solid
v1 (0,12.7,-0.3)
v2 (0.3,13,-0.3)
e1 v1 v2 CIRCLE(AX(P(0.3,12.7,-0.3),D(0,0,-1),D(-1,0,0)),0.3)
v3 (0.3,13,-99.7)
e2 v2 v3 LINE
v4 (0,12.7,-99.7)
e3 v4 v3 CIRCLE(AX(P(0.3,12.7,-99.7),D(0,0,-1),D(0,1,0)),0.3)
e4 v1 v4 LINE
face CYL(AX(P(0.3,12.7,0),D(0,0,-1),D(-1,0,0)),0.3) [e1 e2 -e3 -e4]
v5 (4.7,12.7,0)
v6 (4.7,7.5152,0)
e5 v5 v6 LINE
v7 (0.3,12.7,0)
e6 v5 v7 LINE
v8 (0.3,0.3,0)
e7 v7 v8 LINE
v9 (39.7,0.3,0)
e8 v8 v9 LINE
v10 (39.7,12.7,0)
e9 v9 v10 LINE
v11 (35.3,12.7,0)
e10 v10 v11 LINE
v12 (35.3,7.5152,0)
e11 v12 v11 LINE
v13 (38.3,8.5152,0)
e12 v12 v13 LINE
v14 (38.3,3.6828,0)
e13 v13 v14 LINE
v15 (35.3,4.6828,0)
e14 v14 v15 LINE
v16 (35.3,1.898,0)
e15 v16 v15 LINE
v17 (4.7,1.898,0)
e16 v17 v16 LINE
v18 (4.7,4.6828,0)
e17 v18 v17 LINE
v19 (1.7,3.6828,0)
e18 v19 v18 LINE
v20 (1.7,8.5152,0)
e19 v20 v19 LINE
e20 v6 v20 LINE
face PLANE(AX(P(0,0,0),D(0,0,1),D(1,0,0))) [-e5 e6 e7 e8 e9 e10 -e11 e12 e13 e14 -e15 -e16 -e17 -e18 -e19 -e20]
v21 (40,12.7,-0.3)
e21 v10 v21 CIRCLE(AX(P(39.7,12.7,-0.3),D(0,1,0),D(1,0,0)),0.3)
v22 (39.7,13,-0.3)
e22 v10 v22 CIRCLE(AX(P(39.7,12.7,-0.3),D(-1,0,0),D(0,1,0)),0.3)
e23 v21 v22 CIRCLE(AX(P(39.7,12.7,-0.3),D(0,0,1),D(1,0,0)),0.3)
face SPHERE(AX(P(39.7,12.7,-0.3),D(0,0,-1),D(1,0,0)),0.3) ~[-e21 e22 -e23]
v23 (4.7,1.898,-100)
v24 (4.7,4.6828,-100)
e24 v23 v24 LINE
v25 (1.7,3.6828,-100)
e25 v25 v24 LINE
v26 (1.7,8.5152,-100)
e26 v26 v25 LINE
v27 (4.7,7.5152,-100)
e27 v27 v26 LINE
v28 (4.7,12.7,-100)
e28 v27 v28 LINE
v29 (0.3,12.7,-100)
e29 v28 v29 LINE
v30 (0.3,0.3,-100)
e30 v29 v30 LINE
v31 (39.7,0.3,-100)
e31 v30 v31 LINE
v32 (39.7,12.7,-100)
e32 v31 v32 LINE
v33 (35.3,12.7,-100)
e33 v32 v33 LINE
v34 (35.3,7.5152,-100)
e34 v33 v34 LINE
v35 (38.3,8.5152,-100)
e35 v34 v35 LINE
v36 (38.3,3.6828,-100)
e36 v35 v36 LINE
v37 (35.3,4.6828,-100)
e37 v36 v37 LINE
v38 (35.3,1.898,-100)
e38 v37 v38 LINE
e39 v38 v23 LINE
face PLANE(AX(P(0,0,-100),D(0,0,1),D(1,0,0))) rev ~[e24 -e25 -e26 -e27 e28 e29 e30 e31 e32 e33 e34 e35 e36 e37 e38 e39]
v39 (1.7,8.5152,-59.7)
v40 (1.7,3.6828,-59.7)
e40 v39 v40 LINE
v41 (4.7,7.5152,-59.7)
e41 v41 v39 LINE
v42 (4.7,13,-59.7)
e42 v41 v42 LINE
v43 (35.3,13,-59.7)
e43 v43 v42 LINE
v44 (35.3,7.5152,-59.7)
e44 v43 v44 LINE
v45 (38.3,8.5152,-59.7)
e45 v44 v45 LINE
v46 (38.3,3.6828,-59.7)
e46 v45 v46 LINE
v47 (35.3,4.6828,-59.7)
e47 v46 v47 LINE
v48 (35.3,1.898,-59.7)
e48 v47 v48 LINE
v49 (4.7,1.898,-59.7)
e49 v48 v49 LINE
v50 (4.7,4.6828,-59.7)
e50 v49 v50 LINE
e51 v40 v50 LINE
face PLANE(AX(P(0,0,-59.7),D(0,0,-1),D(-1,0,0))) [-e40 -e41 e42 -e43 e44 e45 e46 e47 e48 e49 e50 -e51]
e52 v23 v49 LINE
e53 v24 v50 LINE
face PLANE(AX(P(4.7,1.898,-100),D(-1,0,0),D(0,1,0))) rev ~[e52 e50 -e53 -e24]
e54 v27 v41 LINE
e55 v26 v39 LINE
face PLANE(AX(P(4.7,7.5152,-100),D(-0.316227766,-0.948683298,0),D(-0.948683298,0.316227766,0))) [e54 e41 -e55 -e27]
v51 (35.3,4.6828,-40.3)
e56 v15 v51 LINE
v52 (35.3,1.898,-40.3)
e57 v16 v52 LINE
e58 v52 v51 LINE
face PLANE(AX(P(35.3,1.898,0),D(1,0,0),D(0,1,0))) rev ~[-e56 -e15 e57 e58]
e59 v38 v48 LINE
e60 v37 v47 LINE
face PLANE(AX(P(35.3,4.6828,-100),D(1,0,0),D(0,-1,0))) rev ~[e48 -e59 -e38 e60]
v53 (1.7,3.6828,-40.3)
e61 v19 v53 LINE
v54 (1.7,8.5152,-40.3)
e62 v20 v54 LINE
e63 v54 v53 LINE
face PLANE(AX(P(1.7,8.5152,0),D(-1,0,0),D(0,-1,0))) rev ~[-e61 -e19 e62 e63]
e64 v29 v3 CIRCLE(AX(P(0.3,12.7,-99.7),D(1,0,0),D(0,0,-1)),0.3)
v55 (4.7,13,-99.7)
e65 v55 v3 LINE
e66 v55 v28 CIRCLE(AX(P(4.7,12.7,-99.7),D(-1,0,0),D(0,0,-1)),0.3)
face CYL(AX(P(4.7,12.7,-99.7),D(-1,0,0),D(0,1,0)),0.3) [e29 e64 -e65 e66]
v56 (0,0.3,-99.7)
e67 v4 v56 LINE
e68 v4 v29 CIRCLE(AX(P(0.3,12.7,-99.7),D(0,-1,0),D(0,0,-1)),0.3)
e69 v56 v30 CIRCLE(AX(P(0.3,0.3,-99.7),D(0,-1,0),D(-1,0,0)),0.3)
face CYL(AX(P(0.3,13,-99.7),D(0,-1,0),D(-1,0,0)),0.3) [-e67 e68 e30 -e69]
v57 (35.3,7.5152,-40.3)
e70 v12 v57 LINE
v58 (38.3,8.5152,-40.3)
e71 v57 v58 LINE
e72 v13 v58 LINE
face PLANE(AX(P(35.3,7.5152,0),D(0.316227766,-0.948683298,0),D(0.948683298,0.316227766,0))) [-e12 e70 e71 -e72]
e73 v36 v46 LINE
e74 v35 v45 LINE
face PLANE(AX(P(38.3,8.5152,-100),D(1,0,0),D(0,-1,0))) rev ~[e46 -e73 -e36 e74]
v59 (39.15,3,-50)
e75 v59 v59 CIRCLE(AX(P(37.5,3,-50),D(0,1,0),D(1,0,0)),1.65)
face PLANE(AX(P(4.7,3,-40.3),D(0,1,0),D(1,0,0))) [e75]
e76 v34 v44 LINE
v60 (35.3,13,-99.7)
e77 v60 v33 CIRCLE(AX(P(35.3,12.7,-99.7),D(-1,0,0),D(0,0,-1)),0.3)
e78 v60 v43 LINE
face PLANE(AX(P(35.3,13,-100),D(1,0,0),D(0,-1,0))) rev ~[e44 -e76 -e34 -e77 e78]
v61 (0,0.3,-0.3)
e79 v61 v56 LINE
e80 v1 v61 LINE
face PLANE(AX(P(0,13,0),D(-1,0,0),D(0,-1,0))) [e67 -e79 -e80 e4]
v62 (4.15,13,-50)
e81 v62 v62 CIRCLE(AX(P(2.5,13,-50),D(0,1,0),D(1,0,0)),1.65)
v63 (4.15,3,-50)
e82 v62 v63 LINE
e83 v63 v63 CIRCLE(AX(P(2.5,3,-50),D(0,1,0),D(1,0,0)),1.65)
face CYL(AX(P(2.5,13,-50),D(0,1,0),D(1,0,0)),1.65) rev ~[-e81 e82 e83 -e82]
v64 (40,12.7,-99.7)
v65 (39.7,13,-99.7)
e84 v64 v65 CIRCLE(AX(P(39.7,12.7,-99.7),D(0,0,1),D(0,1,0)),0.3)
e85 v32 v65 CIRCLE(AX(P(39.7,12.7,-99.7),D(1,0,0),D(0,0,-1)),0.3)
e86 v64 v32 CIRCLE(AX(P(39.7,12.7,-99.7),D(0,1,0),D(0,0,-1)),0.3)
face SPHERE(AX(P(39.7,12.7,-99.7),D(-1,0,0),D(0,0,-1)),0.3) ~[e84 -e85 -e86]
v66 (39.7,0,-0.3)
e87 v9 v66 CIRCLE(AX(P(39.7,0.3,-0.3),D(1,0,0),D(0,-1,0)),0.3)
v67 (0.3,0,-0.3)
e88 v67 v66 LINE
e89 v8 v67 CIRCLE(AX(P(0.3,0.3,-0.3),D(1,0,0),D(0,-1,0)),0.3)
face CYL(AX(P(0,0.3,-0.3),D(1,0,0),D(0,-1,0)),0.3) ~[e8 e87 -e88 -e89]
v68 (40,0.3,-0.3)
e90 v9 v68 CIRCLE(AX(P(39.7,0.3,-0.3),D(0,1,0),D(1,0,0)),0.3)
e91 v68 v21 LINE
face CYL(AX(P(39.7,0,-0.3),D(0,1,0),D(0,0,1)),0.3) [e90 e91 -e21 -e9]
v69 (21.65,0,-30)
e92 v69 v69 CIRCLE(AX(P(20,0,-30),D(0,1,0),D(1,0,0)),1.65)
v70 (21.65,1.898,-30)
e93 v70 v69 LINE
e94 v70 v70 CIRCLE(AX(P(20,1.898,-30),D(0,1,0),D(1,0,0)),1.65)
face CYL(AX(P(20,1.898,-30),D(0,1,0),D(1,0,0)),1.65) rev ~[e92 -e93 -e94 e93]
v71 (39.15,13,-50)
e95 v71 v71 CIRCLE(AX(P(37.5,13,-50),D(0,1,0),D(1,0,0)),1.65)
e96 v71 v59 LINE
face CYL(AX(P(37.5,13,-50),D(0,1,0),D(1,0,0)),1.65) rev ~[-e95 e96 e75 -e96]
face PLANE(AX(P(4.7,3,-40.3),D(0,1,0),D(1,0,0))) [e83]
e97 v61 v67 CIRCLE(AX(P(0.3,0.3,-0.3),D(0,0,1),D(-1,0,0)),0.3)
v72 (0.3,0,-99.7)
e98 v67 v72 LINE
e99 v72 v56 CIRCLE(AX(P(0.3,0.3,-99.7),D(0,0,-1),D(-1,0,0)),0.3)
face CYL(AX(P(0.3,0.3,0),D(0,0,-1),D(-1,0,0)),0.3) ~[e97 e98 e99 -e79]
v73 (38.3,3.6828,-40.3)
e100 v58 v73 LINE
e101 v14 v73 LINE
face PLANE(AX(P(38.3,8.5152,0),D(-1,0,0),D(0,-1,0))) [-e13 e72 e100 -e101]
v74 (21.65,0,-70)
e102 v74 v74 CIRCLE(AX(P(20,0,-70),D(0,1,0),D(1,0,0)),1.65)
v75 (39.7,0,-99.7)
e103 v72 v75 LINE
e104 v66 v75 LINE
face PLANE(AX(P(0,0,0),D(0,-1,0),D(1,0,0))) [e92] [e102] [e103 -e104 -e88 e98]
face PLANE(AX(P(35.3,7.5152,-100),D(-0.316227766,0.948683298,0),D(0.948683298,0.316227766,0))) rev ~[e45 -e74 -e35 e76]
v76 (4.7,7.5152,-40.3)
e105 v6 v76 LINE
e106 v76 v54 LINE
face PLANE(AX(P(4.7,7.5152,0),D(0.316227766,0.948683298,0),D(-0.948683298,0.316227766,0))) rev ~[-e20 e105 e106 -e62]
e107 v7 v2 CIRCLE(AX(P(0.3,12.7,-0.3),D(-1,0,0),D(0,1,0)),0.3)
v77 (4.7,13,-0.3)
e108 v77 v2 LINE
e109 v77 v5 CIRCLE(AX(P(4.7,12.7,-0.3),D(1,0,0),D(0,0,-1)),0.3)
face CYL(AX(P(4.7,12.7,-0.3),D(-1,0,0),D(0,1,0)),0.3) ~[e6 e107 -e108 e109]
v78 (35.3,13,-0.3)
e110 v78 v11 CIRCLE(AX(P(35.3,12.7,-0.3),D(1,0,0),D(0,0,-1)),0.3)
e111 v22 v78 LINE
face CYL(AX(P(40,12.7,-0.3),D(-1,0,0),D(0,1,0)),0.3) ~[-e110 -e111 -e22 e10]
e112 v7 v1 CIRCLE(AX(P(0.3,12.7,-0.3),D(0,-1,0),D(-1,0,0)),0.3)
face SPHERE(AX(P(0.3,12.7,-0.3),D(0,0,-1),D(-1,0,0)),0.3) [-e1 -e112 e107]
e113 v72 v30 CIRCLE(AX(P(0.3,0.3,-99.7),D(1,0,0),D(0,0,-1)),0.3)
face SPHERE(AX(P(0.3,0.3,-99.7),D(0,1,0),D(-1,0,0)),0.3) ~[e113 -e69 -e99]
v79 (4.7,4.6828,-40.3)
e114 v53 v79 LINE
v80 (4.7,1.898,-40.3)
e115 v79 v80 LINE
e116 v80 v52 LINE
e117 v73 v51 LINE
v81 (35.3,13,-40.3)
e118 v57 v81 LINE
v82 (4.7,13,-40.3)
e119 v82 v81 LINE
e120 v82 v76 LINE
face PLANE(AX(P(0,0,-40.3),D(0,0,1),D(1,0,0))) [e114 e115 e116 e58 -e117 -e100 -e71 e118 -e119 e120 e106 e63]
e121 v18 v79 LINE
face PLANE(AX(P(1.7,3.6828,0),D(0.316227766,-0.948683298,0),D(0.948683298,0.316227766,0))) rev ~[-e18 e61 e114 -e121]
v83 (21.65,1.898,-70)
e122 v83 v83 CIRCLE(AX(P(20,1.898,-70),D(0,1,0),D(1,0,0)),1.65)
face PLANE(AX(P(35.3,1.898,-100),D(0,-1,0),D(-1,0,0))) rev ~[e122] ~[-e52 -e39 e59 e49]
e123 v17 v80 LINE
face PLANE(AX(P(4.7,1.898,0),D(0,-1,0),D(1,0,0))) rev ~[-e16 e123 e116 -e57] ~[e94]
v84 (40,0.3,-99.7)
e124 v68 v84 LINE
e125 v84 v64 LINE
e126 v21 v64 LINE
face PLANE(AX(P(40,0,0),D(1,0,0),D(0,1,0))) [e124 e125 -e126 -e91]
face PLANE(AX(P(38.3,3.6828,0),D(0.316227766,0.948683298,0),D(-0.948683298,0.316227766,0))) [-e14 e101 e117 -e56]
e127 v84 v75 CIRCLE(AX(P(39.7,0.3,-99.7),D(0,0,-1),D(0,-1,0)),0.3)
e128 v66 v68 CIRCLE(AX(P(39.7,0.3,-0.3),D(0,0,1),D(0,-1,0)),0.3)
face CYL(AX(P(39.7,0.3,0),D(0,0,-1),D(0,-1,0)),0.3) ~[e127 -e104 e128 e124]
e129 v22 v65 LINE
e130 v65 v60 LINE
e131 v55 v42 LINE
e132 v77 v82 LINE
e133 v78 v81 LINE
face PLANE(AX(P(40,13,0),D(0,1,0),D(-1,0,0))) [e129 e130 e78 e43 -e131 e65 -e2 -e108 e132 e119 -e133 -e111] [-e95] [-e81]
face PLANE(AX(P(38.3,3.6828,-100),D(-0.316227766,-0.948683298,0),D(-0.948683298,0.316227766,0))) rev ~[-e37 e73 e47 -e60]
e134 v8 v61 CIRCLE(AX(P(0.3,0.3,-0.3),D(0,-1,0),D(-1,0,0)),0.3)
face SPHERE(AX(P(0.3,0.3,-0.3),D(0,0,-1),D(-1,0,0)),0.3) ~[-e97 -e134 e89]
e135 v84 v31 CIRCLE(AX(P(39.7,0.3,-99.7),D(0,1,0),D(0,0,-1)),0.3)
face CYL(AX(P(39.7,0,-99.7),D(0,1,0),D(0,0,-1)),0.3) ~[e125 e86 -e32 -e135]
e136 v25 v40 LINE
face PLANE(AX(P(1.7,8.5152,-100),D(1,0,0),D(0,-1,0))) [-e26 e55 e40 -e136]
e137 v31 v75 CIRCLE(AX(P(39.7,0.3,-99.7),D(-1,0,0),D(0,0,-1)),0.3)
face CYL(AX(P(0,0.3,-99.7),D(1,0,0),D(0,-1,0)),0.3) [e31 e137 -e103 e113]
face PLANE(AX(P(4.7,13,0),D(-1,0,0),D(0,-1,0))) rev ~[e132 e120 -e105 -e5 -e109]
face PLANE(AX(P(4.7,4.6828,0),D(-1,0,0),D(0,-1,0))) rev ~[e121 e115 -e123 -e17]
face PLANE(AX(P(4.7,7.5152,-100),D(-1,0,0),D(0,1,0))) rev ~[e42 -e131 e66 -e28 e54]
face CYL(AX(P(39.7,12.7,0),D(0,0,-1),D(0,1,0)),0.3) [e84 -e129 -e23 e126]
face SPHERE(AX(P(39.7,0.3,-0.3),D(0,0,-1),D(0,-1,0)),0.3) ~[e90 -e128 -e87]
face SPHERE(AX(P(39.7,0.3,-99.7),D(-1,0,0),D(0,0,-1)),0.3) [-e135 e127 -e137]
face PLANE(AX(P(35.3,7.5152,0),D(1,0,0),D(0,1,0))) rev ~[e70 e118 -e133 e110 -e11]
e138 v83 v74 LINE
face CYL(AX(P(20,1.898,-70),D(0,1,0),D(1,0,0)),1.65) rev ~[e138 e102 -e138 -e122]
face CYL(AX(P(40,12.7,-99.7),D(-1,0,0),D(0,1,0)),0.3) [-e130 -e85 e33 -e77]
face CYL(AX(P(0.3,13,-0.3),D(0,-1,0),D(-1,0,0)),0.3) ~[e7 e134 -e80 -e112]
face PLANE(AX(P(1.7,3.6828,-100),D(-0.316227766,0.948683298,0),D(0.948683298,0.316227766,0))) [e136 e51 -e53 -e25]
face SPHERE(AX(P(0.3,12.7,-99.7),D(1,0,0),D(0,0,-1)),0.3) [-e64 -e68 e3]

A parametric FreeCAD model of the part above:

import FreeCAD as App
import Part
import Sketcher

V = App.Vector


def edges_at(feature, points):
    """Names of the edges that pass closest to the given points."""
    edges = feature.Shape.Edges
    near = lambda p: min(range(len(edges)), key=lambda i: edges[i].distToShape(Part.Vertex(*p))[0])
    return sorted({f"Edge{near(p) + 1}" for p in points})

doc = App.newDocument("Part")
body = doc.addObject("PartDesign::Body", "Body")

# Sketch on XY plane
sketch1 = body.newObject("Sketcher::SketchObject", "Sketch")
sketch1.AttachmentSupport = (doc.getObject("XY_Plane"), [""])
sketch1.MapMode = "FlatFace"
sketch1.addGeometry([
    Part.LineSegment(V(0, 13, 0), V(0, 0, 0)),
    Part.LineSegment(V(0, 0, 0), V(40, 0, 0)),
    Part.LineSegment(V(40, 0, 0), V(40, 13, 0)),
    Part.LineSegment(V(40, 13, 0), V(0, 13, 0)),
], False)
sketch1.addConstraint([
    Sketcher.Constraint("Coincident", 0, 2, 1, 1),
    Sketcher.Constraint("Coincident", 1, 2, 2, 1),
    Sketcher.Constraint("Coincident", 2, 2, 3, 1),
    Sketcher.Constraint("Coincident", 3, 2, 0, 1),
    Sketcher.Constraint("Vertical", 0),
    Sketcher.Constraint("Horizontal", 1),
    Sketcher.Constraint("Vertical", 2),
    Sketcher.Constraint("Horizontal", 3),
    Sketcher.Constraint("Coincident", 0, 2, -1, 1),
    Sketcher.Constraint("DistanceX", 1, 1, 1, 2, 40.0),
    Sketcher.Constraint("DistanceY", 0, 2, 0, 1, 13.0),
])
pad1 = body.newObject("PartDesign::Pad", "Pad")
pad1.Profile = sketch1
pad1.Length = 100
pad1.Reversed = True

# Sketch on XY plane
sketch2 = body.newObject("Sketcher::SketchObject", "Sketch001")
sketch2.AttachmentSupport = (doc.getObject("XY_Plane"), [""])
sketch2.MapMode = "FlatFace"
sketch2.addGeometry([
    Part.LineSegment(V(4.7, 4.7, 0), V(4.7, 1.9, 0)),  # 0
    Part.LineSegment(V(4.7, 1.9, 0), V(35.3, 1.9, 0)),  # 1
    Part.LineSegment(V(35.3, 1.9, 0), V(35.3, 4.7, 0)),  # 2
    Part.LineSegment(V(35.3, 4.7, 0), V(38.3, 3.7, 0)),  # 3
    Part.LineSegment(V(38.3, 3.7, 0), V(38.3, 8.5, 0)),  # 4
    Part.LineSegment(V(38.3, 8.5, 0), V(35.3, 7.5, 0)),  # 5
    Part.LineSegment(V(35.3, 7.5, 0), V(35.3, 13, 0)),  # 6
    Part.LineSegment(V(35.3, 13, 0), V(4.7, 13, 0)),  # 7
    Part.LineSegment(V(4.7, 13, 0), V(4.7, 7.5, 0)),  # 8
    Part.LineSegment(V(4.7, 7.5, 0), V(1.7, 8.5, 0)),  # 9
    Part.LineSegment(V(1.7, 8.5, 0), V(1.7, 3.7, 0)),  # 10
    Part.LineSegment(V(1.7, 3.7, 0), V(4.7, 4.7, 0)),  # 11
], False)
sketch2.addConstraint([
    Sketcher.Constraint("Coincident", 0, 2, 1, 1),
    Sketcher.Constraint("Coincident", 1, 2, 2, 1),
    Sketcher.Constraint("Coincident", 2, 2, 3, 1),
    Sketcher.Constraint("Coincident", 3, 2, 4, 1),
    Sketcher.Constraint("Coincident", 4, 2, 5, 1),
    Sketcher.Constraint("Coincident", 5, 2, 6, 1),
    Sketcher.Constraint("Coincident", 6, 2, 7, 1),
    Sketcher.Constraint("Coincident", 7, 2, 8, 1),
    Sketcher.Constraint("Coincident", 8, 2, 9, 1),
    Sketcher.Constraint("Coincident", 9, 2, 10, 1),
    Sketcher.Constraint("Coincident", 10, 2, 11, 1),
    Sketcher.Constraint("Coincident", 11, 2, 0, 1),
    Sketcher.Constraint("Vertical", 0),
    Sketcher.Constraint("Horizontal", 1),
    Sketcher.Constraint("Vertical", 2),
    Sketcher.Constraint("Vertical", 4),
    Sketcher.Constraint("Vertical", 6),
    Sketcher.Constraint("Horizontal", 7),
    Sketcher.Constraint("Vertical", 8),
    Sketcher.Constraint("Vertical", 10),
    Sketcher.Constraint("Parallel", 3, 9),
    Sketcher.Constraint("Parallel", 5, 11),
    Sketcher.Constraint("Horizontal", 5, 2, 8, 2),
    Sketcher.Constraint("Horizontal", 4, 2, 9, 2),
    Sketcher.Constraint("Horizontal", 3, 2, 10, 2),
    Sketcher.Constraint("Horizontal", 2, 2, 11, 2),
    Sketcher.Constraint("Vertical", 2, 2, 5, 2),
    Sketcher.Constraint("Vertical", 0, 2, 7, 2),
    Sketcher.Constraint("DistanceX", 1, 1, 1, 2, 30.6),
    Sketcher.Constraint("DistanceY", -1, 1, 6, 2, 13.0),
    Sketcher.Constraint("DistanceX", 2, 2, 3, 2, 3.0),
    Sketcher.Constraint("DistanceY", 3, 2, 2, 2, 1.0),
    Sketcher.Constraint("DistanceX", -1, 1, 0, 2, 4.7),
    Sketcher.Constraint("DistanceY", 0, 2, 0, 1, 2.7848),
    Sketcher.Constraint("DistanceY", 4, 1, 4, 2, 4.8324),
    Sketcher.Constraint("DistanceY", 6, 1, 6, 2, 5.4848),
])
pocket1 = body.newObject("PartDesign::Pocket", "Pocket")
pocket1.Profile = sketch2
pocket1.Length = 40.3

# Sketch on XY plane
sketch3 = body.newObject("Sketcher::SketchObject", "Sketch002")
sketch3.AttachmentSupport = (doc.getObject("XY_Plane"), [""])
sketch3.MapMode = "FlatFace"
sketch3.AttachmentOffset = App.Placement(V(0, 0, -100), App.Rotation())
sketch3.addGeometry([
    Part.LineSegment(V(35.3, 4.7, 0), V(35.3, 1.9, 0)),  # 0
    Part.LineSegment(V(35.3, 1.9, 0), V(4.7, 1.9, 0)),  # 1
    Part.LineSegment(V(4.7, 1.9, 0), V(4.7, 4.7, 0)),  # 2
    Part.LineSegment(V(4.7, 4.7, 0), V(1.7, 3.7, 0)),  # 3
    Part.LineSegment(V(1.7, 3.7, 0), V(1.7, 8.5, 0)),  # 4
    Part.LineSegment(V(1.7, 8.5, 0), V(4.7, 7.5, 0)),  # 5
    Part.LineSegment(V(4.7, 7.5, 0), V(4.7, 13, 0)),  # 6
    Part.LineSegment(V(4.7, 13, 0), V(35.3, 13, 0)),  # 7
    Part.LineSegment(V(35.3, 13, 0), V(35.3, 7.5, 0)),  # 8
    Part.LineSegment(V(35.3, 7.5, 0), V(38.3, 8.5, 0)),  # 9
    Part.LineSegment(V(38.3, 8.5, 0), V(38.3, 3.7, 0)),  # 10
    Part.LineSegment(V(38.3, 3.7, 0), V(35.3, 4.7, 0)),  # 11
], False)
sketch3.addConstraint([
    Sketcher.Constraint("Coincident", 0, 2, 1, 1),
    Sketcher.Constraint("Coincident", 1, 2, 2, 1),
    Sketcher.Constraint("Coincident", 2, 2, 3, 1),
    Sketcher.Constraint("Coincident", 3, 2, 4, 1),
    Sketcher.Constraint("Coincident", 4, 2, 5, 1),
    Sketcher.Constraint("Coincident", 5, 2, 6, 1),
    Sketcher.Constraint("Coincident", 6, 2, 7, 1),
    Sketcher.Constraint("Coincident", 7, 2, 8, 1),
    Sketcher.Constraint("Coincident", 8, 2, 9, 1),
    Sketcher.Constraint("Coincident", 9, 2, 10, 1),
    Sketcher.Constraint("Coincident", 10, 2, 11, 1),
    Sketcher.Constraint("Coincident", 11, 2, 0, 1),
    Sketcher.Constraint("Vertical", 0),
    Sketcher.Constraint("Horizontal", 1),
    Sketcher.Constraint("Vertical", 2),
    Sketcher.Constraint("Vertical", 4),
    Sketcher.Constraint("Vertical", 6),
    Sketcher.Constraint("Horizontal", 7),
    Sketcher.Constraint("Vertical", 8),
    Sketcher.Constraint("Vertical", 10),
    Sketcher.Constraint("Parallel", 3, 9),
    Sketcher.Constraint("Parallel", 5, 11),
    Sketcher.Constraint("Horizontal", 5, 2, 8, 2),
    Sketcher.Constraint("Horizontal", 4, 2, 9, 2),
    Sketcher.Constraint("Horizontal", 3, 2, 10, 2),
    Sketcher.Constraint("Horizontal", 2, 2, 11, 2),
    Sketcher.Constraint("Vertical", 2, 2, 5, 2),
    Sketcher.Constraint("Vertical", 0, 2, 7, 2),
    Sketcher.Constraint("DistanceX", 1, 2, 1, 1, 30.6),
    Sketcher.Constraint("DistanceY", -1, 1, 6, 2, 13.0),
    Sketcher.Constraint("DistanceX", 3, 2, 2, 2, 3.0),
    Sketcher.Constraint("DistanceY", 3, 2, 2, 2, 1.0),
    Sketcher.Constraint("DistanceX", -1, 1, 0, 2, 35.3),
    Sketcher.Constraint("DistanceY", 0, 2, 0, 1, 2.7848),
    Sketcher.Constraint("DistanceY", 4, 1, 4, 2, 4.8324),
    Sketcher.Constraint("DistanceY", 6, 1, 6, 2, 5.4848),
])
pocket2 = body.newObject("PartDesign::Pocket", "Pocket001")
pocket2.Profile = sketch3
pocket2.Length = 40.3
pocket2.Reversed = True

# Sketch on XZ plane
sketch4 = body.newObject("Sketcher::SketchObject", "Sketch003")
sketch4.AttachmentSupport = (doc.getObject("XZ_Plane"), [""])
sketch4.MapMode = "FlatFace"
sketch4.AttachmentOffset = App.Placement(V(0, 0, -1.898), App.Rotation())
sketch4.addGeometry([
    Part.Circle(V(20, -30, 0), V(0, 0, 1), 1.6),
    Part.Circle(V(20, -70, 0), V(0, 0, 1), 1.6),
], False)
sketch4.addConstraint([
    Sketcher.Constraint("Equal", 0, 1),
    Sketcher.Constraint("Vertical", 0, 3, 1, 3),
    Sketcher.Constraint("Diameter", 0, 3.3),
    Sketcher.Constraint("DistanceX", -1, 1, 0, 3, 20.0),
    Sketcher.Constraint("DistanceY", 0, 3, -1, 1, 30.0),
    Sketcher.Constraint("DistanceY", 1, 3, -1, 1, 70.0),
])
pocket3 = body.newObject("PartDesign::Pocket", "Pocket002")
pocket3.Profile = sketch4
pocket3.Length = 5
pocket3.Reversed = True
doc.recompute()

fillet = body.newObject("PartDesign::Fillet", "Fillet")
fillet.Base = (pocket3, edges_at(pocket3, [
    (2.35, 13, -100),
    (37.65, 13, -100),
    (0, 6.5, -100),
    (0, 13, -50),
    (0, 0, -50),
    (20, 0, -100),
    (40, 6.5, -100),
    (0, 6.5, 0),
    (40, 13, -50),
    (40, 0, -50),
    (20, 0, 0),
    (40, 6.5, 0),
    (2.35, 13, 0),
    (37.65, 13, 0),
]))
fillet.Radius = 0.3

# Sketch on XZ plane
sketch5 = body.newObject("Sketcher::SketchObject", "Sketch004")
sketch5.AttachmentSupport = (doc.getObject("XZ_Plane"), [""])
sketch5.MapMode = "FlatFace"
sketch5.AttachmentOffset = App.Placement(V(0, 0, -13), App.Rotation())
sketch5.addGeometry([
    Part.Circle(V(37.5, -50, 0), V(0, 0, 1), 1.6),
    Part.Circle(V(2.5, -50, 0), V(0, 0, 1), 1.6),
], False)
sketch5.addConstraint([
    Sketcher.Constraint("Equal", 0, 1),
    Sketcher.Constraint("Horizontal", 0, 3, 1, 3),
    Sketcher.Constraint("Diameter", 0, 3.3),
    Sketcher.Constraint("DistanceY", 0, 3, -1, 1, 50.0),
    Sketcher.Constraint("DistanceX", 1, 3, 0, 3, 35.0),
    Sketcher.Constraint("DistanceX", -1, 1, 0, 3, 37.5),
])
pocket4 = body.newObject("PartDesign::Pocket", "Pocket003")
pocket4.Profile = sketch5
pocket4.Length = 10
pocket4.Reversed = True

doc.recompute()
